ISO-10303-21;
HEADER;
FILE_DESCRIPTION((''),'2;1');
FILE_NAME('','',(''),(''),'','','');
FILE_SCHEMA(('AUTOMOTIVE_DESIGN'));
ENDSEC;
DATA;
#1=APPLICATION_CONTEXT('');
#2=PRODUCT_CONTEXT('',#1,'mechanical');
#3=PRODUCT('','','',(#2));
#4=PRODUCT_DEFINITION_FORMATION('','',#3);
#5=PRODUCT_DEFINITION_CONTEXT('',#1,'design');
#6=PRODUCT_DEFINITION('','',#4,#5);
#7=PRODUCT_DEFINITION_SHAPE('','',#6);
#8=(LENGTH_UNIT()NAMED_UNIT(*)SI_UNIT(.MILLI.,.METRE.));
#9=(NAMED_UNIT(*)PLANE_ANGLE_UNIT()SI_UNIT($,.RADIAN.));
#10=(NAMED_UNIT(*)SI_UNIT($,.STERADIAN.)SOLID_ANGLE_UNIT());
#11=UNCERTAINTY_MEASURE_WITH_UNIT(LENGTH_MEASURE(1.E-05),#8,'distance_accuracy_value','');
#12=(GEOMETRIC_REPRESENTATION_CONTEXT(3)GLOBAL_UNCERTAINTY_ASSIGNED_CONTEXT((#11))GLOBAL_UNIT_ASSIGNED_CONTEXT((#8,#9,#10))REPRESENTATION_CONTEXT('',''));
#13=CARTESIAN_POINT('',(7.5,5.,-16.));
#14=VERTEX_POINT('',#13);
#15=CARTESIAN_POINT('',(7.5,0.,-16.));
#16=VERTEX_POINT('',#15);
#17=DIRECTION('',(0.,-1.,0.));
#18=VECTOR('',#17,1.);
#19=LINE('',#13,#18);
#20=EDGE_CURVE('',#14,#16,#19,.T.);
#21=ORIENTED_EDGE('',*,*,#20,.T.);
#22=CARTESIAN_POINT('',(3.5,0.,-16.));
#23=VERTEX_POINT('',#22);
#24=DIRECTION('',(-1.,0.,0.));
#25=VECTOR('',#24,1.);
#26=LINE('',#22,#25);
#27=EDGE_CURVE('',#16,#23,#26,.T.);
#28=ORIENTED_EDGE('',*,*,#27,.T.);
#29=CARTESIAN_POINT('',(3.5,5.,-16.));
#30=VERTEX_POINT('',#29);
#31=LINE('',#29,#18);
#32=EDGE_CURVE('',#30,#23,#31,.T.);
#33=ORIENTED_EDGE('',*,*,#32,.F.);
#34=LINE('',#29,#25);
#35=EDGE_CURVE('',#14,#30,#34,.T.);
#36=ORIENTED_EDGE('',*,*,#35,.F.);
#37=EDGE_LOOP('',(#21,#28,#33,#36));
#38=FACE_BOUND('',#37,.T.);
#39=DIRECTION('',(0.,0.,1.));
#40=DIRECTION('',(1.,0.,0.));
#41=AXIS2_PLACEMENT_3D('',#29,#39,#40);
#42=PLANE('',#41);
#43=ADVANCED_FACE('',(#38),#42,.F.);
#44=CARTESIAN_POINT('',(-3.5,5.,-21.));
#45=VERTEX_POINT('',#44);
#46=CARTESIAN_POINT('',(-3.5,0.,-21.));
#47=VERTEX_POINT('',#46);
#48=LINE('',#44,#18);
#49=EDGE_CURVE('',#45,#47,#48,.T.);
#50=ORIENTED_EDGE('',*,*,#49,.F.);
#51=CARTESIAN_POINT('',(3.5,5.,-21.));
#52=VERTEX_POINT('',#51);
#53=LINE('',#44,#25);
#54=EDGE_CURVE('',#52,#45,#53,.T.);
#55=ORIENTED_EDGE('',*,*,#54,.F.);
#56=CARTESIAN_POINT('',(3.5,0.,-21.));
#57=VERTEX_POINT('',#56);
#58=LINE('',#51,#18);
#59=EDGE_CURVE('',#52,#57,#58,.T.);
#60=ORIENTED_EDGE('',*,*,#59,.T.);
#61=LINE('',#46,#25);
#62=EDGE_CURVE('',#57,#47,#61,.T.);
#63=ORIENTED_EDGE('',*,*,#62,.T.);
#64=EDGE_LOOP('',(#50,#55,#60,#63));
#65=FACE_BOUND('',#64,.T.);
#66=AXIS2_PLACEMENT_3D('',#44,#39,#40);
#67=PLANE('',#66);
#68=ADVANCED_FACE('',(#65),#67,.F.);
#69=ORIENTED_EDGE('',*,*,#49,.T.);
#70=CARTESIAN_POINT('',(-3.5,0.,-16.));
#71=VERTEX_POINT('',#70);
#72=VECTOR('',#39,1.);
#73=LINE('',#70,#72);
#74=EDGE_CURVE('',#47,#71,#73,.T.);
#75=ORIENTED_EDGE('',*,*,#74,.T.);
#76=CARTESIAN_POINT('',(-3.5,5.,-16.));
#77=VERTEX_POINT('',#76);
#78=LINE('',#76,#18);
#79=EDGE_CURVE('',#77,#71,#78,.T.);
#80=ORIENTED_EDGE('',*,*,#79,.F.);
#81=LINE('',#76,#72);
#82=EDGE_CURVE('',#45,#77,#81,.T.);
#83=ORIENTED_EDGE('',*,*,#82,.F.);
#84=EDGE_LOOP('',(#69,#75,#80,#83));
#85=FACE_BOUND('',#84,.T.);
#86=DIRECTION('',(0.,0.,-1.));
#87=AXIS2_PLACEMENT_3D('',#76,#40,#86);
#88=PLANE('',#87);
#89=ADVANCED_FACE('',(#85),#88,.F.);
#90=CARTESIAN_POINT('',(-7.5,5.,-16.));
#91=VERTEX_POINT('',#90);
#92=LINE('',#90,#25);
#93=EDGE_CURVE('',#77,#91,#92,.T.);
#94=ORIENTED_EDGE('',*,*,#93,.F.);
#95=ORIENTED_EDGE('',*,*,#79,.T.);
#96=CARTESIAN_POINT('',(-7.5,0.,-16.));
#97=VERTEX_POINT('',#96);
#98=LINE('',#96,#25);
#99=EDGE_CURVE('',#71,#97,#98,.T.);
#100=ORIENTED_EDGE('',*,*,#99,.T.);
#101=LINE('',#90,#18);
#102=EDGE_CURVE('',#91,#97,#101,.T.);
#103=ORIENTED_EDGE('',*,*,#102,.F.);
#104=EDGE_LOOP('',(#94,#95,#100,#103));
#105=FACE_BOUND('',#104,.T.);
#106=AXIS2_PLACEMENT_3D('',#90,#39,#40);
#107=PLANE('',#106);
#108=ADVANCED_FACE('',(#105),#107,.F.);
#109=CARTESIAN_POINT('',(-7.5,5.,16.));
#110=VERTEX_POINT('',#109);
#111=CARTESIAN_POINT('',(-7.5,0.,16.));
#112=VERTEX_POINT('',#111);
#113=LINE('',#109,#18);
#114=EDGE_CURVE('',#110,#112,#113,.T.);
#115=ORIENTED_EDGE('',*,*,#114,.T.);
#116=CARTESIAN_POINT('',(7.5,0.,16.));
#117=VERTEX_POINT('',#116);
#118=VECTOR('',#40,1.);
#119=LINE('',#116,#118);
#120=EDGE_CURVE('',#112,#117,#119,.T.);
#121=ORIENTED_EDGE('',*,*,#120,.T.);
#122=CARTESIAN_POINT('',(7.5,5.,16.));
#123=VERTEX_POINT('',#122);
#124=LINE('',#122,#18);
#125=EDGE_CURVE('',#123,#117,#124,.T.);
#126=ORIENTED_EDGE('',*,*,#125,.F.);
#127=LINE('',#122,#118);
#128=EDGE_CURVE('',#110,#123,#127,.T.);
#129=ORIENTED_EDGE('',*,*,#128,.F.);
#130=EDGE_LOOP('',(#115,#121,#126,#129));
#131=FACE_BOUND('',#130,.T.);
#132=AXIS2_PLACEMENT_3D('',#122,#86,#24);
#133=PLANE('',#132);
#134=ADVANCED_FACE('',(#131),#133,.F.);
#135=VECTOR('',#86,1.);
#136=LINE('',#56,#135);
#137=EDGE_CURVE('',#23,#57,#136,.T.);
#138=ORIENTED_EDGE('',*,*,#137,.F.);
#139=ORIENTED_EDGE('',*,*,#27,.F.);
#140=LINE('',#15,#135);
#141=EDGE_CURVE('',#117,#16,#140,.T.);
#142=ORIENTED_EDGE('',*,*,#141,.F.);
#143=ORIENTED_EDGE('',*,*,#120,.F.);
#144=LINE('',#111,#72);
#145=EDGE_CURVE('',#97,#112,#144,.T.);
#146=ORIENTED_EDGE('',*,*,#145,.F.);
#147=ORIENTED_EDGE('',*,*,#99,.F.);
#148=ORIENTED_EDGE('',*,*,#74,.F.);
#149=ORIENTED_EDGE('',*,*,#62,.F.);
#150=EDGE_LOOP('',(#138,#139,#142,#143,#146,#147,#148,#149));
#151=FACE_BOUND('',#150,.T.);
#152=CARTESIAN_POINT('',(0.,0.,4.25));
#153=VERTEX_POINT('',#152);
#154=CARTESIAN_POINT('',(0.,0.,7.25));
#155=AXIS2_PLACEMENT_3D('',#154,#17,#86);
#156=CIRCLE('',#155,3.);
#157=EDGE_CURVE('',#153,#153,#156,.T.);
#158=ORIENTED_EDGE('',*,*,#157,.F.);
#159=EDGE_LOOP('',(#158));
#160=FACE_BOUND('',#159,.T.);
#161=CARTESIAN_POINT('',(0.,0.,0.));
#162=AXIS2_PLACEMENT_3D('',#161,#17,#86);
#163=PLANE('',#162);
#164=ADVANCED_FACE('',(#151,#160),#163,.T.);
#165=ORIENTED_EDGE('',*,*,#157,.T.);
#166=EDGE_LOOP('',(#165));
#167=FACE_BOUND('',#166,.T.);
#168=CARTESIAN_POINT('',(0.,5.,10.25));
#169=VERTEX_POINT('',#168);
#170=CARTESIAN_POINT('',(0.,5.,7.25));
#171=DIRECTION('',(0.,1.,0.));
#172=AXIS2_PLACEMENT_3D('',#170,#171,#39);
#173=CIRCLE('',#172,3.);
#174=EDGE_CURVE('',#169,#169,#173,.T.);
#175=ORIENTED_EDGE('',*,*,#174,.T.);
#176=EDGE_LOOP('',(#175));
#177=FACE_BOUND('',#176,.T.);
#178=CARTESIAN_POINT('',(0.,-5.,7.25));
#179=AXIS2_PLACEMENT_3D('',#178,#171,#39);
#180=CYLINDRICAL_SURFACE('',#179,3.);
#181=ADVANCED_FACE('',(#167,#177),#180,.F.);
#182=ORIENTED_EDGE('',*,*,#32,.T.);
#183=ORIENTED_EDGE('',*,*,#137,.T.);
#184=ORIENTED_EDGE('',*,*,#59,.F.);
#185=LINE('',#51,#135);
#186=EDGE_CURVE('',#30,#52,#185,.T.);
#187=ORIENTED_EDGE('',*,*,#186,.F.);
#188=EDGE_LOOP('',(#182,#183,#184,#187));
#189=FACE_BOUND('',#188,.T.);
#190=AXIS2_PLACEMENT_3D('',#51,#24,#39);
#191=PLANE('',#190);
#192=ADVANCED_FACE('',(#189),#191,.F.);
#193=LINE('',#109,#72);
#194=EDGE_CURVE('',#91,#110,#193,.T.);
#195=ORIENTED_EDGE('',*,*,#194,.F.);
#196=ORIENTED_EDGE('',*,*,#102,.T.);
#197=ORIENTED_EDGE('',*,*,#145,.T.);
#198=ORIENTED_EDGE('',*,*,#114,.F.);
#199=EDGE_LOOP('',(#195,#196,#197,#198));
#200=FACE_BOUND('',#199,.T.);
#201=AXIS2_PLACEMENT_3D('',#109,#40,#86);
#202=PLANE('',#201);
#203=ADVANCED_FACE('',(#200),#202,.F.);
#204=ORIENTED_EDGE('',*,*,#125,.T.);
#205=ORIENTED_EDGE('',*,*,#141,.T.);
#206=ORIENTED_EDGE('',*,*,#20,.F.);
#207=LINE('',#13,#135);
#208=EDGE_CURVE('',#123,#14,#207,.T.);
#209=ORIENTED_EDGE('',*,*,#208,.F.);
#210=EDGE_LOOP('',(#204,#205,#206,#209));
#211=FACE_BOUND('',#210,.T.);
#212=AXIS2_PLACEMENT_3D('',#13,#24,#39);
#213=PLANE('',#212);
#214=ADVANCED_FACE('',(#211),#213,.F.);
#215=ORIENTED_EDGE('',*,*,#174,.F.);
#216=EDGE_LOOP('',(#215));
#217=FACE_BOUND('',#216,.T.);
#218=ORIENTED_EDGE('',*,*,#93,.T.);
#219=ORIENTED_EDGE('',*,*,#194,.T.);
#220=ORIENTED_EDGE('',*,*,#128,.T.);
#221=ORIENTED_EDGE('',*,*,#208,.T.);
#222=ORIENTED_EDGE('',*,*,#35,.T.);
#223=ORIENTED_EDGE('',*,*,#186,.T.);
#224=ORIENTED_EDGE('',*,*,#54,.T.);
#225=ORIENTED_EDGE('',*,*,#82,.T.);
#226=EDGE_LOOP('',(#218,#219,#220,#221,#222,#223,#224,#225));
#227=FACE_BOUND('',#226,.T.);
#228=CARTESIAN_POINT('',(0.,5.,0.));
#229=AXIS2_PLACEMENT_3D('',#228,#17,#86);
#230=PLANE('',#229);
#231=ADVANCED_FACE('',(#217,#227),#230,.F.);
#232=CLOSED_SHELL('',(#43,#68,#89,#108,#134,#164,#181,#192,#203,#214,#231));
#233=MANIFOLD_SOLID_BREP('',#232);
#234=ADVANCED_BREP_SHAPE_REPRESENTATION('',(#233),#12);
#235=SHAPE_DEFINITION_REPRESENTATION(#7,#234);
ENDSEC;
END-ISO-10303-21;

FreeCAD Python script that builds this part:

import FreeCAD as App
import Part
import Sketcher
from FreeCAD import Vector
Q = App.Units.Quantity


def add_polygon(sketch, points):
    """Adds a closed chain of lines whose ends are joined by coincident constraints."""
    first, n = sketch.GeometryCount, len(points)
    for a, b in zip(points, points[1:] + points[:1]):
        sketch.addGeometry(Part.LineSegment(App.Vector(*a, 0), App.Vector(*b, 0)), False)
    for i in range(n):
        sketch.addConstraint(Sketcher.Constraint("Coincident", first + i, 2, first + (i + 1) % n, 1))

doc = App.newDocument("Part")
body = doc.addObject("PartDesign::Body", "Body")

sketch1 = body.newObject("Sketcher::SketchObject", "Sketch")
sketch1.AttachmentSupport = (doc.getObject("XZ_Plane"), [""])
sketch1.MapMode = "FlatFace"
add_polygon(sketch1, [(-7.5, -16), (-7.5, 16), (7.5, 16), (7.5, -16), (3.5, -16), (3.5, -21), (-3.5, -21), (-3.5, -16)])
sketch1.addConstraint([
    Sketcher.Constraint("Vertical", 0),
    Sketcher.Constraint("Horizontal", 1),
    Sketcher.Constraint("Vertical", 2),
    Sketcher.Constraint("Horizontal", 3),
    Sketcher.Constraint("Vertical", 4),
    Sketcher.Constraint("Horizontal", 5),
    Sketcher.Constraint("Vertical", 6),
    Sketcher.Constraint("Horizontal", 7),
    Sketcher.Constraint("Symmetric", 0, 2, 2, 2, -1, 1),
    Sketcher.Constraint("Symmetric", 3, 2, 6, 2, -2),
    Sketcher.Constraint("DistanceX", 1, 1, 1, 2, Q("15 mm")),
    Sketcher.Constraint("DistanceX", 3, 2, 3, 1, Q("4 mm")),
    Sketcher.Constraint("DistanceY", 0, 1, 0, 2, Q("32 mm")),
    Sketcher.Constraint("DistanceY", 4, 2, 4, 1, Q("5 mm")),
])
pad1 = body.newObject("PartDesign::Pad", "Pad")
pad1.Profile = sketch1
pad1.Length = 5
pad1.Reversed = True

sketch2 = body.newObject("Sketcher::SketchObject", "Sketch001")
sketch2.AttachmentSupport = (doc.getObject("XZ_Plane"), [""])
sketch2.MapMode = "FlatFace"
sketch2.AttachmentOffset = App.Placement(Vector(0, 0, -5), App.Rotation())
sketch2.addGeometry(Part.Circle(Vector(0, 7.2, 0), Vector(0, 0, 1), 3), False)
sketch2.addConstraint([
    Sketcher.Constraint("PointOnObject", 0, 3, -2),
    Sketcher.Constraint("Diameter", 0, Q("6 mm")),
    Sketcher.Constraint("DistanceY", -1, 1, 0, 3, Q("7.25 mm")),
])
pocket1 = body.newObject("PartDesign::Pocket", "Pocket")
pocket1.Profile = sketch2
pocket1.Length = 10
pocket1.Reversed = True

doc.recompute()
